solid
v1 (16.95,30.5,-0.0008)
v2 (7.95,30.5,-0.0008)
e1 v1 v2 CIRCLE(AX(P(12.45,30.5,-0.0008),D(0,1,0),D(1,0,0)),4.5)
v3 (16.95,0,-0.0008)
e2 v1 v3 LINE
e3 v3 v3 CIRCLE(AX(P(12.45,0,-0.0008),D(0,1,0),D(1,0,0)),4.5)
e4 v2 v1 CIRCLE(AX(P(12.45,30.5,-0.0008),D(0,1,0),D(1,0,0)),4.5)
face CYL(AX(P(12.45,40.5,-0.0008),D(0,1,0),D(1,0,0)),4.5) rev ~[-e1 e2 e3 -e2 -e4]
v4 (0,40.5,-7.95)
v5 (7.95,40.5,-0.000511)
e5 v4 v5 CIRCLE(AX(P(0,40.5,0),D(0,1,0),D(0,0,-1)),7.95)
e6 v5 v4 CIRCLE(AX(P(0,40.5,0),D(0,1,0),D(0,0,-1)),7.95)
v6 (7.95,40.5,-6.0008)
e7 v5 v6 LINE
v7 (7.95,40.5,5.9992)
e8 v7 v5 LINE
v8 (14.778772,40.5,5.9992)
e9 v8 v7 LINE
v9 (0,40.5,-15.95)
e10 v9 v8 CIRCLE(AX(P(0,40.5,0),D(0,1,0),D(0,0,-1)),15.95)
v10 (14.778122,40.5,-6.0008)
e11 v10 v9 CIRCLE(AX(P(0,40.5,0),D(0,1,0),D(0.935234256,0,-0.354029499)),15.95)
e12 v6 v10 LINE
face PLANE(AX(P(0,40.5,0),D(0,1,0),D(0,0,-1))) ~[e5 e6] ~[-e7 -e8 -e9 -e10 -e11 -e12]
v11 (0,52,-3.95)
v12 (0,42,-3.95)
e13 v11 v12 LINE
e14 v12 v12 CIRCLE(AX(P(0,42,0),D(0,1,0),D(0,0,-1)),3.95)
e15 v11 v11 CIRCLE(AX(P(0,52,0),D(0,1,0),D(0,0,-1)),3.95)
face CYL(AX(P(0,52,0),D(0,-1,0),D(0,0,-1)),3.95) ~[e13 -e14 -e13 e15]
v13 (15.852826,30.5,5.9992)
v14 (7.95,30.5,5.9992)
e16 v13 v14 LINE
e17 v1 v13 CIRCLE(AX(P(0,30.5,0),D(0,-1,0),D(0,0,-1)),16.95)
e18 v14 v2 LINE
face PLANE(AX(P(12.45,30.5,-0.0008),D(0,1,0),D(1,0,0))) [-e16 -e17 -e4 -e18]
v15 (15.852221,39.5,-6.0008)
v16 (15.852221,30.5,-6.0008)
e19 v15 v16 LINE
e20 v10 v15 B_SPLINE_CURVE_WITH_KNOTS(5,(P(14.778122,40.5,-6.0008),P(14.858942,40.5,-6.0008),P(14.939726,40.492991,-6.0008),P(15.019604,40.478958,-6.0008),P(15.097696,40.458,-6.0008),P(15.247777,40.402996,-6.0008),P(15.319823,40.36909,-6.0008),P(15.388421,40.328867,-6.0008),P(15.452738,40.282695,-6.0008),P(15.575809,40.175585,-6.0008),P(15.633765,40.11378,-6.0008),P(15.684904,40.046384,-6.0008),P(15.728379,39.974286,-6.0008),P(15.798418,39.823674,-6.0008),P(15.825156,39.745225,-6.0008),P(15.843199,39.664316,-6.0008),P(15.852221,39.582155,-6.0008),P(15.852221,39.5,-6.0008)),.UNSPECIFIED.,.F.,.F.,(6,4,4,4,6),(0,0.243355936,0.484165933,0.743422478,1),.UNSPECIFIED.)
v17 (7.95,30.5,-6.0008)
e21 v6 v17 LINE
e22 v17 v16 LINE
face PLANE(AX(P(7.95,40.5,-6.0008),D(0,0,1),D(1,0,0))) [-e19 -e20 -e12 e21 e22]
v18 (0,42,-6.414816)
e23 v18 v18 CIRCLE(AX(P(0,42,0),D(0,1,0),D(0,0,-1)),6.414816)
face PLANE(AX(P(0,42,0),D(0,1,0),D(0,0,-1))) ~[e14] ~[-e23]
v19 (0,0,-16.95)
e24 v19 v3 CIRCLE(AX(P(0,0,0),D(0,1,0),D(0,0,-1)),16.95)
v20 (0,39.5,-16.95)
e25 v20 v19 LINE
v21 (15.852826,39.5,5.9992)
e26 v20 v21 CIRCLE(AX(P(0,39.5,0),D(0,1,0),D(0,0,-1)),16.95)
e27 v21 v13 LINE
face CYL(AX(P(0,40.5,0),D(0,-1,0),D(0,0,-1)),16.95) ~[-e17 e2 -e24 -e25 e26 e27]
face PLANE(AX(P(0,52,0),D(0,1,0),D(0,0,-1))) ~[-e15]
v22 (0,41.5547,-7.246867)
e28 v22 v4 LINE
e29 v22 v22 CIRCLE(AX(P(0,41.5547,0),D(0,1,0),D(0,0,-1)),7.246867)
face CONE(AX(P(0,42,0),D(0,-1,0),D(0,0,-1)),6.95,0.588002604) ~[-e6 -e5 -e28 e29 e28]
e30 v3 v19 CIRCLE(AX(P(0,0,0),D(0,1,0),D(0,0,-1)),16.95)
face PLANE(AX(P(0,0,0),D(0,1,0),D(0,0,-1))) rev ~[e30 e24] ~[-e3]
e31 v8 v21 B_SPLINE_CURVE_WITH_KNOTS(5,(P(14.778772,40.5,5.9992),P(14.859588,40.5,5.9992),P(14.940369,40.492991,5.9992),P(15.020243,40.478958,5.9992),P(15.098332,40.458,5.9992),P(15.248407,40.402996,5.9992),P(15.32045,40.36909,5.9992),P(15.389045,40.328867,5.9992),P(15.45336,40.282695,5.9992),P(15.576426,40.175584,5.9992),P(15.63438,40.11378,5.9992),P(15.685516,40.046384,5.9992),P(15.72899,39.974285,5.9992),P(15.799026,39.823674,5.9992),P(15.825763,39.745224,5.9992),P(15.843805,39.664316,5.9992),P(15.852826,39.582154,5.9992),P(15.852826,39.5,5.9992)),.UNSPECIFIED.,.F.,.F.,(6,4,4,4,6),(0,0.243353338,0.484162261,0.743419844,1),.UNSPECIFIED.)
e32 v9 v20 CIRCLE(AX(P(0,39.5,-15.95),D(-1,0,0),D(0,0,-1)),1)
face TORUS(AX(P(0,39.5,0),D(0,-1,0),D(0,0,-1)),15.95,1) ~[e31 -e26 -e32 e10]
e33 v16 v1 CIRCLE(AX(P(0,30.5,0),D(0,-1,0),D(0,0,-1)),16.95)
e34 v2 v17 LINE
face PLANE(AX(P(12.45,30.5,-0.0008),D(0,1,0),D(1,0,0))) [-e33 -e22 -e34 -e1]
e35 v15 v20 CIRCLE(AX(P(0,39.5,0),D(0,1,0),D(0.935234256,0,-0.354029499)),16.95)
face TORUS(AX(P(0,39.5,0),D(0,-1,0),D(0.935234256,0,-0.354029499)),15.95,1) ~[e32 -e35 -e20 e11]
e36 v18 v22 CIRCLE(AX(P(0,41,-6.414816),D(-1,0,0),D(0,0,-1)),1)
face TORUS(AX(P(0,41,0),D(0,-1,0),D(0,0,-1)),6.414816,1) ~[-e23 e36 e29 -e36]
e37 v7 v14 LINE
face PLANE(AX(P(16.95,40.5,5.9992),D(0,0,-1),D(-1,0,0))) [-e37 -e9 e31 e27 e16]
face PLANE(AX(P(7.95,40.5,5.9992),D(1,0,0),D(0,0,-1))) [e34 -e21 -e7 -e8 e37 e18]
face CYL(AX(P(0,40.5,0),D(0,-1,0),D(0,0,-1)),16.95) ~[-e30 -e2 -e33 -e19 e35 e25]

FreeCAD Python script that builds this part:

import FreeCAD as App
import Part
import Sketcher

V = App.Vector


def edges_at(feature, points):
    """Names of the edges that pass closest to the given points."""
    edges = feature.Shape.Edges
    near = lambda p: min(range(len(edges)), key=lambda i: edges[i].distToShape(Part.Vertex(*p))[0])
    return sorted({f"Edge{near(p) + 1}" for p in points})

doc = App.newDocument("Part")
body = doc.addObject("PartDesign::Body", "Body")

sketch1 = doc.addObject("Sketcher::SketchObject", "Sketch")
body.addObject(sketch1)
sketch1.AttachmentSupport = (doc.YZ_Plane, [""])
sketch1.MapMode = "FlatFace"
sketch1.addGeometry(Part.LineSegment(V(52, 0, 0), V(0, 0, 0)), False)
sketch1.addGeometry(Part.LineSegment(V(0, 0, 0), V(0, -16.95, 0)), False)
sketch1.addGeometry(Part.LineSegment(V(0, -16.95, 0), V(40.5, -16.95, 0)), False)
sketch1.addGeometry(Part.LineSegment(V(40.5, -16.95, 0), V(40.5, -7.95, 0)), False)
sketch1.addGeometry(Part.LineSegment(V(40.5, -7.95, 0), V(42, -6.95, 0)), False)
sketch1.addGeometry(Part.LineSegment(V(42, -6.95, 0), V(42, -3.95, 0)), False)
sketch1.addGeometry(Part.LineSegment(V(42, -3.95, 0), V(52, -3.95, 0)), False)
sketch1.addGeometry(Part.LineSegment(V(52, -3.95, 0), V(52, 0, 0)), False)
sketch1.addConstraint(Sketcher.Constraint("Coincident", 0, 2, 1, 1))
sketch1.addConstraint(Sketcher.Constraint("Coincident", 1, 2, 2, 1))
sketch1.addConstraint(Sketcher.Constraint("Coincident", 2, 2, 3, 1))
sketch1.addConstraint(Sketcher.Constraint("Coincident", 3, 2, 4, 1))
sketch1.addConstraint(Sketcher.Constraint("Coincident", 4, 2, 5, 1))
sketch1.addConstraint(Sketcher.Constraint("Coincident", 5, 2, 6, 1))
sketch1.addConstraint(Sketcher.Constraint("Coincident", 6, 2, 7, 1))
sketch1.addConstraint(Sketcher.Constraint("Coincident", 7, 2, 0, 1))
sketch1.addConstraint(Sketcher.Constraint("Horizontal", 0))
sketch1.addConstraint(Sketcher.Constraint("Vertical", 1))
sketch1.addConstraint(Sketcher.Constraint("Horizontal", 2))
sketch1.addConstraint(Sketcher.Constraint("Vertical", 3))
sketch1.addConstraint(Sketcher.Constraint("Vertical", 5))
sketch1.addConstraint(Sketcher.Constraint("Horizontal", 6))
sketch1.addConstraint(Sketcher.Constraint("Vertical", 7))
sketch1.addConstraint(Sketcher.Constraint("Coincident", 0, 2, -1, 1))
sketch1.addConstraint(Sketcher.Constraint("DistanceX", 0, 2, 0, 1, 52.0))
sketch1.addConstraint(Sketcher.Constraint("DistanceX", 6, 1, 6, 2, 10.0))
sketch1.addConstraint(Sketcher.Constraint("DistanceY", 3, 1, 3, 2, 9.0))
sketch1.addConstraint(Sketcher.Constraint("DistanceY", 5, 1, 5, 2, 3.0))
sketch1.addConstraint(Sketcher.Constraint("DistanceY", 2, 2, 4, 2, 10.0))
sketch1.addConstraint(Sketcher.Constraint("DistanceY", 1, 2, 1, 1, 16.95))
sketch1.addConstraint(Sketcher.Constraint("DistanceX", 3, 2, 4, 2, 1.5))
revolution = doc.addObject("PartDesign::Revolution", "Revolution")
body.addObject(revolution)
revolution.Profile = sketch1
revolution.ReferenceAxis = (sketch1, ["H_Axis"])
revolution.Angle = 360

sketch2 = doc.addObject("Sketcher::SketchObject", "Sketch001")
body.addObject(sketch2)
sketch2.AttachmentSupport = (doc.XZ_Plane, [""])
sketch2.MapMode = "FlatFace"
sketch2.AttachmentOffset = App.Placement(V(0, 0, -40.5), App.Rotation())
sketch2.addGeometry(Part.Circle(V(12.45, -0.0008, 0), V(0, 0, 1), 4.5), False)
sketch2.addConstraint(Sketcher.Constraint("Diameter", 0, 9.0))
sketch2.addConstraint(Sketcher.Constraint("DistanceX", -1, 1, 0, 3, 12.45))
sketch2.addConstraint(Sketcher.Constraint("DistanceY", 0, 3, -1, 1, 0.0008))
pocket1 = doc.addObject("PartDesign::Pocket", "Pocket")
body.addObject(pocket1)
pocket1.Profile = sketch2
pocket1.Length = 50
pocket1.Reversed = True

sketch3 = doc.addObject("Sketcher::SketchObject", "Sketch002")
body.addObject(sketch3)
sketch3.AttachmentSupport = (doc.XZ_Plane, [""])
sketch3.MapMode = "FlatFace"
sketch3.AttachmentOffset = App.Placement(V(0, 0, -40.5), App.Rotation())
sketch3.addGeometry(Part.LineSegment(V(7.95, 5.9992, 0), V(16.95, 5.9992, 0)), False)
sketch3.addGeometry(Part.LineSegment(V(16.95, 5.9992, 0), V(16.95, -6.0008, 0)), False)
sketch3.addGeometry(Part.LineSegment(V(16.95, -6.0008, 0), V(7.95, -6.0008, 0)), False)
sketch3.addGeometry(Part.LineSegment(V(7.95, -6.0008, 0), V(7.95, 5.9992, 0)), False)
sketch3.addConstraint(Sketcher.Constraint("Coincident", 0, 2, 1, 1))
sketch3.addConstraint(Sketcher.Constraint("Coincident", 1, 2, 2, 1))
sketch3.addConstraint(Sketcher.Constraint("Coincident", 2, 2, 3, 1))
sketch3.addConstraint(Sketcher.Constraint("Coincident", 3, 2, 0, 1))
sketch3.addConstraint(Sketcher.Constraint("Horizontal", 0))
sketch3.addConstraint(Sketcher.Constraint("Vertical", 1))
sketch3.addConstraint(Sketcher.Constraint("Horizontal", 2))
sketch3.addConstraint(Sketcher.Constraint("Vertical", 3))
sketch3.addConstraint(Sketcher.Constraint("DistanceX", 0, 1, 0, 2, 9.0))
sketch3.addConstraint(Sketcher.Constraint("DistanceY", 1, 2, 1, 1, 12.0))
sketch3.addConstraint(Sketcher.Constraint("DistanceX", -1, 1, 0, 2, 16.95))
sketch3.addConstraint(Sketcher.Constraint("DistanceY", -1, 1, 0, 2, 5.9992))
pocket2 = doc.addObject("PartDesign::Pocket", "Pocket001")
body.addObject(pocket2)
pocket2.Profile = sketch3
pocket2.Length = 10
pocket2.Reversed = True
doc.recompute()

fillet = doc.addObject("PartDesign::Fillet", "Fillet")
body.addObject(fillet)
fillet.Base = (pocket2, edges_at(pocket2, [(0, 42, 6.95), (9.633, 40.5, -13.947), (-13.946, 40.5, 9.634)]))
fillet.Radius = 1

doc.recompute()
